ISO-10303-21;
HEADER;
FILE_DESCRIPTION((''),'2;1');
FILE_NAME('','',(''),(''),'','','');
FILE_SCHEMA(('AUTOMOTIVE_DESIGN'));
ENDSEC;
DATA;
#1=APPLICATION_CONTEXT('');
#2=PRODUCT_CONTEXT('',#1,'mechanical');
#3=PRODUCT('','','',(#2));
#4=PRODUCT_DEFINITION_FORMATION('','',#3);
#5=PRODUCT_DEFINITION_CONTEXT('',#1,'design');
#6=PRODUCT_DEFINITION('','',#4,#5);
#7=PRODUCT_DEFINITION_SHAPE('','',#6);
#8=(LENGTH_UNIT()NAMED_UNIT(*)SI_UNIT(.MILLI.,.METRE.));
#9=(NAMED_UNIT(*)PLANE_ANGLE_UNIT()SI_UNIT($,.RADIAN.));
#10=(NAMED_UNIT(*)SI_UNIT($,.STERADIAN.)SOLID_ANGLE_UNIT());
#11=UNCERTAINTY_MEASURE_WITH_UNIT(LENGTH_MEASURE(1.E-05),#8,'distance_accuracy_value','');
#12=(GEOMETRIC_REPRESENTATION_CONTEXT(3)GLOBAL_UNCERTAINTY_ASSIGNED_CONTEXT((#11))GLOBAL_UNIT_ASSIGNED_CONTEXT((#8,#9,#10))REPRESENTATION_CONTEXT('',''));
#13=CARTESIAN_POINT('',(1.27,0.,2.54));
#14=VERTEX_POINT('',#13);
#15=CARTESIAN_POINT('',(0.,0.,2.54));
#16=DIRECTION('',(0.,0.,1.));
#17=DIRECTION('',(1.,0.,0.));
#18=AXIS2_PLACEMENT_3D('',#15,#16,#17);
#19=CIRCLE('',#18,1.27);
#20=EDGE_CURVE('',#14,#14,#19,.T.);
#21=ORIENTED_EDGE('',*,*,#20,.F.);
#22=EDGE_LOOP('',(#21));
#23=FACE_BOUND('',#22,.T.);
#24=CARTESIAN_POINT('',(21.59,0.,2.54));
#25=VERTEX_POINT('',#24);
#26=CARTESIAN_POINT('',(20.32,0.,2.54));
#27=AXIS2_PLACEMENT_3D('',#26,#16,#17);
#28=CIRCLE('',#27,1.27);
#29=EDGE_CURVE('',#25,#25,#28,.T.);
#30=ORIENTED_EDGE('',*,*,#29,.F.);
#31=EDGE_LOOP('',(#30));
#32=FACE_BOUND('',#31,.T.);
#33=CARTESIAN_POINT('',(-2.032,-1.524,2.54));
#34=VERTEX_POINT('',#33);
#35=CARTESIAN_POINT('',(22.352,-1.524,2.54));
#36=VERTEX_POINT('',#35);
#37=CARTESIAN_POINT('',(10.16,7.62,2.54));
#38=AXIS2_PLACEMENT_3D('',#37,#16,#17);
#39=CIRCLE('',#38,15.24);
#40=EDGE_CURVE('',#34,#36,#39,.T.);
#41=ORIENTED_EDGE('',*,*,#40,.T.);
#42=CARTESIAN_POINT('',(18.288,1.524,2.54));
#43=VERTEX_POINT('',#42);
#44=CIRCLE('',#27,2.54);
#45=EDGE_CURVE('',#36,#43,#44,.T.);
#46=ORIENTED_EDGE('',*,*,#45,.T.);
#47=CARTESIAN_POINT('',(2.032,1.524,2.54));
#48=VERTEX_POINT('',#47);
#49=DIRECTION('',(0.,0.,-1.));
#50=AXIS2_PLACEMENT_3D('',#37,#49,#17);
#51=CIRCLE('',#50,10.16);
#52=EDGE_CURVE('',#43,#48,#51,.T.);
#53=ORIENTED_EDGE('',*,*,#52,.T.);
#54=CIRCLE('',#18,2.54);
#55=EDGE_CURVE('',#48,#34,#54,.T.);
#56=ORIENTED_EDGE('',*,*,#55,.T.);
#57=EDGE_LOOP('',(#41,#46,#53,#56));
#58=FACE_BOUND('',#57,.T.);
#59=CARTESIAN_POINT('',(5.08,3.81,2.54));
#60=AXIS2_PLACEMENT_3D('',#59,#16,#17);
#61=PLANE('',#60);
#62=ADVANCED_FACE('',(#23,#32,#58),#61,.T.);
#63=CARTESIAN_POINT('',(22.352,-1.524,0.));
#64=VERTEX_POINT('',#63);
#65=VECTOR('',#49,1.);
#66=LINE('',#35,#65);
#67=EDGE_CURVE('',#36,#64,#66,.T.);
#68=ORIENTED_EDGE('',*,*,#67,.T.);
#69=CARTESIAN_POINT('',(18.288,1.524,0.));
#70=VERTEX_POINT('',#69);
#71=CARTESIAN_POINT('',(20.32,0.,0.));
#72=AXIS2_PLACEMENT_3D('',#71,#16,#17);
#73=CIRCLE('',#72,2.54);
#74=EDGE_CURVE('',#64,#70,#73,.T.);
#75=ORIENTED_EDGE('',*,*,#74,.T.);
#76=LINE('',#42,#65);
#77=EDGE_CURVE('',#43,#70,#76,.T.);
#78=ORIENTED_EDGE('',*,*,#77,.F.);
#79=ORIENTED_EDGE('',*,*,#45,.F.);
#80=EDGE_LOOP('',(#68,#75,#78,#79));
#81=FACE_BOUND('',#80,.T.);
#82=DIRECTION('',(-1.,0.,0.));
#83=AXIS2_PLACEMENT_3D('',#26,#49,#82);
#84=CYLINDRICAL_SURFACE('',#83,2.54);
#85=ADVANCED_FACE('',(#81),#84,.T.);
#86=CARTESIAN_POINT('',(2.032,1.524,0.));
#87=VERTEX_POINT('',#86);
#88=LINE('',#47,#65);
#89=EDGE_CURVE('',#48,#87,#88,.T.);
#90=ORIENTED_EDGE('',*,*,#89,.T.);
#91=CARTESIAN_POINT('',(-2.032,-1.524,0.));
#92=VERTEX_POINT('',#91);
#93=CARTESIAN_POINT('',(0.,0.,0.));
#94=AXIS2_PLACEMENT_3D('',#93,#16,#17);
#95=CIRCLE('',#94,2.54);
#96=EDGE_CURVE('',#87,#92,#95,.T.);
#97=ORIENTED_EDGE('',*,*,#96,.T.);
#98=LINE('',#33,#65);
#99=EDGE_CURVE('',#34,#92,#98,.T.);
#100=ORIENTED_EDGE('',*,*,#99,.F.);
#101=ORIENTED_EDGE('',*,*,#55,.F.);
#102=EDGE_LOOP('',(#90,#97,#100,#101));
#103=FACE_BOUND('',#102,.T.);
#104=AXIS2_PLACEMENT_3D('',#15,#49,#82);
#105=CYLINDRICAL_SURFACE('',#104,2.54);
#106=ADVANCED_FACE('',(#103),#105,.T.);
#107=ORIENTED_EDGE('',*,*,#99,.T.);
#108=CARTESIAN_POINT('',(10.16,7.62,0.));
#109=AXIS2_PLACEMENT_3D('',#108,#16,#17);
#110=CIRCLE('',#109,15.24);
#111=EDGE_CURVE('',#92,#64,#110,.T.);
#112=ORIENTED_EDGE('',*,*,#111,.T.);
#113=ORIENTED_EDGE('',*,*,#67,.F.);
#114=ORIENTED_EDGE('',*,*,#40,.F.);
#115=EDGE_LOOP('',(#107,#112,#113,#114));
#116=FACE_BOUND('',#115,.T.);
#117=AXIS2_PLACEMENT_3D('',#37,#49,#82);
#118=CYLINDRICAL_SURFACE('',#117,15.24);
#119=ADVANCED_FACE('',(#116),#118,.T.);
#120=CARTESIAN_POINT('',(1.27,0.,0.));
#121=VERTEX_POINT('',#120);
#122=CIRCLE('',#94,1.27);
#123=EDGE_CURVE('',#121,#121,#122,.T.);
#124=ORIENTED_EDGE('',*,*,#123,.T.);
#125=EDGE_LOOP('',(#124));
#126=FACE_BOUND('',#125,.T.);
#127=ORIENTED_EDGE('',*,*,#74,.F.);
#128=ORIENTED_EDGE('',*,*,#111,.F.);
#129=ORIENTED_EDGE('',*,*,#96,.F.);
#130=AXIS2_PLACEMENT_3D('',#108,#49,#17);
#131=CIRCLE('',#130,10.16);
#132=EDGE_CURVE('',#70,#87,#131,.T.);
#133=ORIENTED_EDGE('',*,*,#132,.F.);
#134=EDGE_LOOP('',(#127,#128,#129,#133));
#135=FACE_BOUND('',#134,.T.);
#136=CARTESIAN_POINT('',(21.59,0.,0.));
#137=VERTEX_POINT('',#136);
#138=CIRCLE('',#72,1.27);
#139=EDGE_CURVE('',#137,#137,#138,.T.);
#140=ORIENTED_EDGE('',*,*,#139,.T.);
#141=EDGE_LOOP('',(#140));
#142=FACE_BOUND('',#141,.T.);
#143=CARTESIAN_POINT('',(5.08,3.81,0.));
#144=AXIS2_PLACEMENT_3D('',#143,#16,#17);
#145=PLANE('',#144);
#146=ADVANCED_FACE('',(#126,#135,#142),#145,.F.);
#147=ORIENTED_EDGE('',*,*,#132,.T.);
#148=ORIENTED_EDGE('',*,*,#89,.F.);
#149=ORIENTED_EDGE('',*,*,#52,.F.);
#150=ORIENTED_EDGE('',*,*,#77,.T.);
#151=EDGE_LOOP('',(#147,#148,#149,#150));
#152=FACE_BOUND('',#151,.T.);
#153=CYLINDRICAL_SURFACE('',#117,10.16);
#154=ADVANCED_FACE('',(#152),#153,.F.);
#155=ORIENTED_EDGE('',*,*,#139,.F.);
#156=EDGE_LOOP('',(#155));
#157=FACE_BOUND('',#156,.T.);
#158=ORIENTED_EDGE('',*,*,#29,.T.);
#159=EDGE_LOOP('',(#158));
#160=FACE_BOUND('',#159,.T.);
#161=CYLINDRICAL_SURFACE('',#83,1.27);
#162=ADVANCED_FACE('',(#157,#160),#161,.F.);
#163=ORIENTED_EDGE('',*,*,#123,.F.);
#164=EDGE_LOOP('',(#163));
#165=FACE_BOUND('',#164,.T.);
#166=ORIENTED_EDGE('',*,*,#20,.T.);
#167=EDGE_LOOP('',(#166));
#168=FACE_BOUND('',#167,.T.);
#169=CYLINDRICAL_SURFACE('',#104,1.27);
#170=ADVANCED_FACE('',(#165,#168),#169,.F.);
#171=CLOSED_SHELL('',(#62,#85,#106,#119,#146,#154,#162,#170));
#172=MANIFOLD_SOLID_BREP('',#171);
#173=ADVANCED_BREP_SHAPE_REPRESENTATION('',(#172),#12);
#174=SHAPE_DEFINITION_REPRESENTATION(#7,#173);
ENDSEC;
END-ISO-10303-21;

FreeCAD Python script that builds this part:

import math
import FreeCAD as App
import Part
import Sketcher
from FreeCAD import Vector
Q = App.Units.Quantity

doc = App.newDocument("Part")
body = doc.addObject("PartDesign::Body", "Body")

sketch1 = doc.addObject("Sketcher::SketchObject", "Sketch")
body.addObject(sketch1)
sketch1.AttachmentSupport = (doc.XY_Plane, [""])
sketch1.MapMode = "FlatFace"
sketch1.addGeometry(Part.ArcOfCircle(Part.Circle(Vector(10.2, 7.6, 0), Vector(0, 0, 1), 15.2), math.radians(-143), math.radians(-37)), False)
sketch1.addGeometry(Part.ArcOfCircle(Part.Circle(Vector(20.3, 0, 0), Vector(0, 0, 1), 2.5), math.radians(-37), math.radians(143)), False)
sketch1.addGeometry(Part.ArcOfCircle(Part.Circle(Vector(10.2, 7.6, 0), Vector(0, 0, 1), 10.2), math.radians(-143), math.radians(-37)), False)
sketch1.addGeometry(Part.ArcOfCircle(Part.Circle(Vector(0, 0, 0), Vector(0, 0, 1), 2.5), math.radians(37), math.radians(217)), False)
sketch1.addGeometry(Part.Circle(Vector(0, 0, 0), Vector(0, 0, 1), 1.3), False)
sketch1.addGeometry(Part.Circle(Vector(20.3, 0, 0), Vector(0, 0, 1), 1.3), False)
sketch1.addConstraint(Sketcher.Constraint("Tangent", 0, 2, 1, 1))
sketch1.addConstraint(Sketcher.Constraint("Tangent", 1, 2, 2, 2))
sketch1.addConstraint(Sketcher.Constraint("Tangent", 2, 1, 3, 1))
sketch1.addConstraint(Sketcher.Constraint("Tangent", 3, 2, 0, 1))
sketch1.addConstraint(Sketcher.Constraint("Coincident", 3, 3, -1, 1))
sketch1.addConstraint(Sketcher.Constraint("Coincident", 4, 3, -1, 1))
sketch1.addConstraint(Sketcher.Constraint("Coincident", 2, 3, 0, 3))
sketch1.addConstraint(Sketcher.Constraint("Coincident", 5, 3, 1, 3))
sketch1.addConstraint(Sketcher.Constraint("Equal", 4, 5))
sketch1.addConstraint(Sketcher.Constraint("PointOnObject", 1, 3, -1))
sketch1.addConstraint(Sketcher.Constraint("Diameter", 4, Q("0.1 in")))
sketch1.addConstraint(Sketcher.Constraint("Radius", 0, Q("0.6 in")))
sketch1.addConstraint(Sketcher.Constraint("Radius", 1, Q("0.1 in")))
sketch1.addConstraint(Sketcher.Constraint("DistanceX", -1, 1, 0, 3, Q("0.4 in")))
pad1 = doc.addObject("PartDesign::Pad", "Pad")
body.addObject(pad1)
pad1.Profile = sketch1
pad1.Length = Q("0.1 in")

doc.recompute()
